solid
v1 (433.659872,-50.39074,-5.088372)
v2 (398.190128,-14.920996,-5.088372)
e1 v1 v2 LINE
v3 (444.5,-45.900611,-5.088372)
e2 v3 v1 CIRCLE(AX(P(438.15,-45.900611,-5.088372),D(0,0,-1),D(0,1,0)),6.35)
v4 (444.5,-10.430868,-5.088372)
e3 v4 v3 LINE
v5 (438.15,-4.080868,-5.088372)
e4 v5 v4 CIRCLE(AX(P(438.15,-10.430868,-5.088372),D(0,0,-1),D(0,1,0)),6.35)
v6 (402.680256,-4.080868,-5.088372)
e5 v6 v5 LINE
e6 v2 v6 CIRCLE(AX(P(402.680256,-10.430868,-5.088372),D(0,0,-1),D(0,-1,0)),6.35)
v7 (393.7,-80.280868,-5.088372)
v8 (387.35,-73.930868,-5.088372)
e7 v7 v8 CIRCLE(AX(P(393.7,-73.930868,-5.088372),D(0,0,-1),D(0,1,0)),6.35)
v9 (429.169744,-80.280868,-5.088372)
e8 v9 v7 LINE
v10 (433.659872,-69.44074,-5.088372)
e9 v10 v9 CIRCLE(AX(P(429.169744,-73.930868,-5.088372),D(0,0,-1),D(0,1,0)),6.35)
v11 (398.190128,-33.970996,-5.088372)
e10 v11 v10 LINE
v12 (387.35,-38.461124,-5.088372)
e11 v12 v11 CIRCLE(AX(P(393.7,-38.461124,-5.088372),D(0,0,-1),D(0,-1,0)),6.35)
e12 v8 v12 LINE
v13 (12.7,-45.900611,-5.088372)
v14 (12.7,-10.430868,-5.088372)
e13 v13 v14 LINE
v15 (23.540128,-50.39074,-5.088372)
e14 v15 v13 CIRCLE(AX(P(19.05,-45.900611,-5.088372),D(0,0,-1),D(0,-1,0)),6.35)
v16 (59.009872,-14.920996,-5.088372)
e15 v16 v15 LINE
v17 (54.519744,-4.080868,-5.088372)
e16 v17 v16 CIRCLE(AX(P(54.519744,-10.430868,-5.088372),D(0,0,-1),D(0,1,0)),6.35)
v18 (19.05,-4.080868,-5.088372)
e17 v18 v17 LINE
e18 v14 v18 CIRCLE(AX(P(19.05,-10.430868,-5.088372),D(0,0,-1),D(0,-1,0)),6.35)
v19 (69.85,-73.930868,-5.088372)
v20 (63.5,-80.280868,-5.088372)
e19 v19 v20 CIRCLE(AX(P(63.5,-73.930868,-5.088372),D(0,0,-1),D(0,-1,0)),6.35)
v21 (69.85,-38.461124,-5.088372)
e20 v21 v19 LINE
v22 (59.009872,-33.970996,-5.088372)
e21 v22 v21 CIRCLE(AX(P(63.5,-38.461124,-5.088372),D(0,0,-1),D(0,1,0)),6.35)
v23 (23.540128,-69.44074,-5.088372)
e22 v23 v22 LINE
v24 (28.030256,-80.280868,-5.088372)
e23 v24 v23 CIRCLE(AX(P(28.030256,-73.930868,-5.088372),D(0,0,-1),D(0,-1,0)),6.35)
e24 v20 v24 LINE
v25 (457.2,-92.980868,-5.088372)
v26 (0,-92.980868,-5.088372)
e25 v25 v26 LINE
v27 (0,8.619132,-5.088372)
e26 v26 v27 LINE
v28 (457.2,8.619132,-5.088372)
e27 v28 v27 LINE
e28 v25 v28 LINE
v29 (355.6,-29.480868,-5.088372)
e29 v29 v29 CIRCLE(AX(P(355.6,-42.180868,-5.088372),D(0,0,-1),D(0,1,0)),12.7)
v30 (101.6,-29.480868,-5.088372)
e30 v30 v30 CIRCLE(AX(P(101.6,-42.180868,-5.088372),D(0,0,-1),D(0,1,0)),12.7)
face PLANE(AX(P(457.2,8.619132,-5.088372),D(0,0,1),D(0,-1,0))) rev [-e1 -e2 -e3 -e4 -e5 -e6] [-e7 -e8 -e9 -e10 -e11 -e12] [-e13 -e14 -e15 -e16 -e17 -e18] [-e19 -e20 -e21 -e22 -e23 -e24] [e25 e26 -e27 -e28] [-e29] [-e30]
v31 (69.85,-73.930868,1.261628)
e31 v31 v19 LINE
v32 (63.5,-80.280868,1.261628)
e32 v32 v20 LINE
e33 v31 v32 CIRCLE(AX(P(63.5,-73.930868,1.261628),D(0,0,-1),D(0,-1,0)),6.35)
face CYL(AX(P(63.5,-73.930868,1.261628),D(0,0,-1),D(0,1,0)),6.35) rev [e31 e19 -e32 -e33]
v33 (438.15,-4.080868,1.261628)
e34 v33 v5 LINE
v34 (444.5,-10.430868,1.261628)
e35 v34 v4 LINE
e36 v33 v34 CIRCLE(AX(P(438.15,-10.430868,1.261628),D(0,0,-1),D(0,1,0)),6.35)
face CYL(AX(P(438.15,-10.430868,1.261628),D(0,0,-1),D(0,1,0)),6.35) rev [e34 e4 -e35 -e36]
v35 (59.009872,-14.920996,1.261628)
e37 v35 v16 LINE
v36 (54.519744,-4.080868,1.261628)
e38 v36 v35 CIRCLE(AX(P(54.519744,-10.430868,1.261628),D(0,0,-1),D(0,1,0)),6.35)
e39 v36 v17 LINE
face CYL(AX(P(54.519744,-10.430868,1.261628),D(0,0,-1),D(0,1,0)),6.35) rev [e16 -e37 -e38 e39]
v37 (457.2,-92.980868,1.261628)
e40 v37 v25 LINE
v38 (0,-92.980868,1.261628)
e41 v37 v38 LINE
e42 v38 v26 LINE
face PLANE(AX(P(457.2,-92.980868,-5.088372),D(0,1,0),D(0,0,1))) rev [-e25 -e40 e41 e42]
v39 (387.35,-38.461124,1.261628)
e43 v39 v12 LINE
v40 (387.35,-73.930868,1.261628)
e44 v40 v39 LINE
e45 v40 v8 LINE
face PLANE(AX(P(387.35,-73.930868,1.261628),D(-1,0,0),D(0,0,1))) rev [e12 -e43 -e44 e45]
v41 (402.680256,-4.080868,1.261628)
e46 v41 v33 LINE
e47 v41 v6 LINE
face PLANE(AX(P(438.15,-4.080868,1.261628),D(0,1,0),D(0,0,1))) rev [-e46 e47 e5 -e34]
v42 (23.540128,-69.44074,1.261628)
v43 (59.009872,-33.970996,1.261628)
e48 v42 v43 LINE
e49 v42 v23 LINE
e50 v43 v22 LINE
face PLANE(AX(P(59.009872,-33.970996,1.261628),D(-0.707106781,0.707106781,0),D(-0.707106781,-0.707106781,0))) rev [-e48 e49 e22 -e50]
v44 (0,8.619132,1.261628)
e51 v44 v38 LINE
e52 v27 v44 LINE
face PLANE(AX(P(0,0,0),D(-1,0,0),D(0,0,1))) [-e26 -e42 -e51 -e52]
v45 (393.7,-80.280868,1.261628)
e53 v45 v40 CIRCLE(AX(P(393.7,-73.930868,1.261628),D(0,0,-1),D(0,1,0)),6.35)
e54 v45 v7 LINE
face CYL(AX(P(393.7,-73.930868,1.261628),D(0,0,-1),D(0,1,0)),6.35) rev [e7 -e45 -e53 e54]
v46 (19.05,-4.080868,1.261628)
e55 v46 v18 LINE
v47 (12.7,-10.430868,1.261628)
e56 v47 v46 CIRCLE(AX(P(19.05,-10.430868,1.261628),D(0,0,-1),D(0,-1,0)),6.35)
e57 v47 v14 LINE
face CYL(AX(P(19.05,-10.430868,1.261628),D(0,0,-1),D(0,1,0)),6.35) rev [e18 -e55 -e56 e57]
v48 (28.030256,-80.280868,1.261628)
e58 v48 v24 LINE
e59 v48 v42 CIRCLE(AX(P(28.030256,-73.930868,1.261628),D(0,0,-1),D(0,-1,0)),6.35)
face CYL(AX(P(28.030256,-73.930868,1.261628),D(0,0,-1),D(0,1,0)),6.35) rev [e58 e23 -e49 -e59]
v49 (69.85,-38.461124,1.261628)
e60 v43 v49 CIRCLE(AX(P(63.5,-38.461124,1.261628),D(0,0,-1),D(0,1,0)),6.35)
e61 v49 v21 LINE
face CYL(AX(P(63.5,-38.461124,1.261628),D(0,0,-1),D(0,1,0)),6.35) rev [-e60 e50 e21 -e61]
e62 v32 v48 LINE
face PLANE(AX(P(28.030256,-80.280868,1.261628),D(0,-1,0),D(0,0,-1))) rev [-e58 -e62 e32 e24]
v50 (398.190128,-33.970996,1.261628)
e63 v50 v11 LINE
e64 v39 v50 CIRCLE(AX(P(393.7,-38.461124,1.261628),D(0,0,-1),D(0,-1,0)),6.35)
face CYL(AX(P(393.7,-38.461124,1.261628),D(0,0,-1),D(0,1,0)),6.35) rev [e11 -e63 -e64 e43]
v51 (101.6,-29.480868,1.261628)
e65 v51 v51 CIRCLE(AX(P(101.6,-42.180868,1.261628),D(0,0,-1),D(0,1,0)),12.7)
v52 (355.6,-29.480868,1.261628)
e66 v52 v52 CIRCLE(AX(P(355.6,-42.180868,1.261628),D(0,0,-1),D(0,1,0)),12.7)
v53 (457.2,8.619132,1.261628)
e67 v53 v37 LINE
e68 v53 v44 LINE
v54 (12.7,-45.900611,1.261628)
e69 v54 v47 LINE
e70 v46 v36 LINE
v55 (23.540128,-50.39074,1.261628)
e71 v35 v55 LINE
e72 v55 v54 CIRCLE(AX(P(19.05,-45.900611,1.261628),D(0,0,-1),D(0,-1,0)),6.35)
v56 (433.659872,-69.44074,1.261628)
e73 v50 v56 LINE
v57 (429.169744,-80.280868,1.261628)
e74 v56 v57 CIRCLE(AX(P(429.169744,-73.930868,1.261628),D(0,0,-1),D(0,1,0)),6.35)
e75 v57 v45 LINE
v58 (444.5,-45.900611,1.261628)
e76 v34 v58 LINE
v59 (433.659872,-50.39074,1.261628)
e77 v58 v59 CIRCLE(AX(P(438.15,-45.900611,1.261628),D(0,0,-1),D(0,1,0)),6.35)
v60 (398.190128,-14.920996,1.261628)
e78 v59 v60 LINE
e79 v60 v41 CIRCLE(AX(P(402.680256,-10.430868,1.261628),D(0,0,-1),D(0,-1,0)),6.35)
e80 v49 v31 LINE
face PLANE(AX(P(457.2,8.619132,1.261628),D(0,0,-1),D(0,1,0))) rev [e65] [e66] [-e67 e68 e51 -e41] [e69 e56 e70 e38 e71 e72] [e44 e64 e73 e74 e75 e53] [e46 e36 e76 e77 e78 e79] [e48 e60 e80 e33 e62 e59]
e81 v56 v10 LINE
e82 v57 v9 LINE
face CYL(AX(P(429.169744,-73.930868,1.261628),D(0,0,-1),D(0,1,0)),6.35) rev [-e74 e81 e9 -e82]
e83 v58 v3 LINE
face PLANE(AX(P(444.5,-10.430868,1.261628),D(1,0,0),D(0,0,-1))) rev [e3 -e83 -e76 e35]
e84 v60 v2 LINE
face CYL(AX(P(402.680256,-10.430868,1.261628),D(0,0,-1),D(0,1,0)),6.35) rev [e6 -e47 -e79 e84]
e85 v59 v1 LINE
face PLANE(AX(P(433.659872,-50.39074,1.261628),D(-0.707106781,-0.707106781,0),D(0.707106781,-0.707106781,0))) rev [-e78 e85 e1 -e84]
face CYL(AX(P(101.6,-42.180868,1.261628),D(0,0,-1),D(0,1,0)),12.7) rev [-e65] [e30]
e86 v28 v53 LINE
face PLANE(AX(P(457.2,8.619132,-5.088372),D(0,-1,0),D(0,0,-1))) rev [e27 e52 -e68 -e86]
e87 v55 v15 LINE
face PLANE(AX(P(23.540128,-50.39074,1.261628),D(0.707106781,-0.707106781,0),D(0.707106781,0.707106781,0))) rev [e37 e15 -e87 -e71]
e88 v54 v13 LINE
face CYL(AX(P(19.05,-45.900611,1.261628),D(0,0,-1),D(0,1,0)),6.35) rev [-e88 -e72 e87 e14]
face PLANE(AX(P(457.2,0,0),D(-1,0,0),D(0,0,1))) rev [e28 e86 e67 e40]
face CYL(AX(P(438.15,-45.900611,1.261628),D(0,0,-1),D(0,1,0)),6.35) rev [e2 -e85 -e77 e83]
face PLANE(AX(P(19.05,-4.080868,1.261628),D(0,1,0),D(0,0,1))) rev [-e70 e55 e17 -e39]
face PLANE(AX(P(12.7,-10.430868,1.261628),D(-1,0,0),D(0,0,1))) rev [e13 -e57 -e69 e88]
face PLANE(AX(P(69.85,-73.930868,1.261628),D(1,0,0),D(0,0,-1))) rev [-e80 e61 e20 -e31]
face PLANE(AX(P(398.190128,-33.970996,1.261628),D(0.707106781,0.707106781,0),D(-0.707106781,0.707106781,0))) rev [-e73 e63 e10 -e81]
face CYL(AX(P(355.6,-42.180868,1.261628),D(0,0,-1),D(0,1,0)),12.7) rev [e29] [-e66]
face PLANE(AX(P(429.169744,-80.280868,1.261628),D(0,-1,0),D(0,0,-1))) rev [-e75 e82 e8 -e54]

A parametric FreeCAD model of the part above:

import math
import FreeCAD as App
import Part
import Sketcher

V = App.Vector
Q = App.Units.Quantity

doc = App.newDocument("Part")
body = doc.addObject("PartDesign::Body", "Body")

sketch1 = doc.addObject("Sketcher::SketchObject", "Sketch")
body.addObject(sketch1)
sketch1.AttachmentSupport = (doc.YZ_Plane, [""])
sketch1.MapMode = "FlatFace"
sketch1.addGeometry(Part.LineSegment(V(8.619132, 1.261628, 0), V(-92.980868, 1.261628, 0)), False)
sketch1.addGeometry(Part.LineSegment(V(-92.980868, 1.261628, 0), V(-92.980868, -5.088372, 0)), False)
sketch1.addGeometry(Part.LineSegment(V(-92.980868, -5.088372, 0), V(8.619132, -5.088372, 0)), False)
sketch1.addGeometry(Part.LineSegment(V(8.619132, -5.088372, 0), V(8.619132, 1.261628, 0)), False)
sketch1.addConstraint(Sketcher.Constraint("Coincident", 0, 2, 1, 1))
sketch1.addConstraint(Sketcher.Constraint("Coincident", 1, 2, 2, 1))
sketch1.addConstraint(Sketcher.Constraint("Coincident", 2, 2, 3, 1))
sketch1.addConstraint(Sketcher.Constraint("Coincident", 3, 2, 0, 1))
sketch1.addConstraint(Sketcher.Constraint("Horizontal", 0))
sketch1.addConstraint(Sketcher.Constraint("Vertical", 1))
sketch1.addConstraint(Sketcher.Constraint("Horizontal", 2))
sketch1.addConstraint(Sketcher.Constraint("Vertical", 3))
sketch1.addConstraint(Sketcher.Constraint("DistanceX", 0, 2, 0, 1, Q("4 in")))
sketch1.addConstraint(Sketcher.Constraint("DistanceY", 1, 2, 1, 1, Q("0.25 in")))
sketch1.addConstraint(Sketcher.Constraint("DistanceY", -1, 1, 0, 2, Q("1.261628 mm")))
sketch1.addConstraint(Sketcher.Constraint("DistanceX", 0, 2, -1, 1, Q("92.980868 mm")))
pad1 = doc.addObject("PartDesign::Pad", "Pad")
body.addObject(pad1)
pad1.Profile = sketch1
pad1.Length = Q("18 in")

sketch2 = doc.addObject("Sketcher::SketchObject", "Sketch001")
body.addObject(sketch2)
sketch2.AttachmentSupport = (doc.XY_Plane, [""])
sketch2.MapMode = "FlatFace"
sketch2.AttachmentOffset = App.Placement(V(0, 0, -5.088372), App.Rotation())
sketch2.addGeometry(Part.Circle(V(355.6, -42.180868, 0), V(0, 0, 1), 12.7), False)
sketch2.addGeometry(Part.Circle(V(101.6, -42.180868, 0), V(0, 0, 1), 12.7), False)
sketch2.addConstraint(Sketcher.Constraint("Equal", 0, 1))
sketch2.addConstraint(Sketcher.Constraint("Horizontal", 0, 3, 1, 3))
sketch2.addConstraint(Sketcher.Constraint("Diameter", 0, Q("1 in")))
sketch2.addConstraint(Sketcher.Constraint("DistanceX", -1, 1, 0, 3, Q("14 in")))
sketch2.addConstraint(Sketcher.Constraint("DistanceX", -1, 1, 1, 3, Q("4 in")))
sketch2.addConstraint(Sketcher.Constraint("DistanceY", 0, 3, -1, 1, Q("42.180868 mm")))
pocket1 = doc.addObject("PartDesign::Pocket", "Pocket")
body.addObject(pocket1)
pocket1.Profile = sketch2
pocket1.Type = "ThroughAll"
pocket1.Reversed = True

sketch3 = doc.addObject("Sketcher::SketchObject", "Sketch002")
body.addObject(sketch3)
sketch3.AttachmentSupport = (doc.XY_Plane, [""])
sketch3.MapMode = "FlatFace"
sketch3.AttachmentOffset = App.Placement(V(0, 0, -5.088372), App.Rotation())
sketch3.addGeometry(Part.LineSegment(V(402.680256, -4.080868, 0), V(438.15, -4.080868, 0)), False)
sketch3.addGeometry(Part.ArcOfCircle(Part.Circle(V(438.15, -10.430868, 0), V(0, 0, 1), 6.35), math.radians(0), math.radians(90)), False)
sketch3.addGeometry(Part.LineSegment(V(444.5, -10.430868, 0), V(444.5, -45.900611, 0)), False)
sketch3.addGeometry(Part.ArcOfCircle(Part.Circle(V(438.15, -45.900611, 0), V(0, 0, 1), 6.35), math.radians(-135), math.radians(0)), False)
sketch3.addGeometry(Part.LineSegment(V(433.659872, -50.39074, 0), V(398.190128, -14.920996, 0)), False)
sketch3.addGeometry(Part.ArcOfCircle(Part.Circle(V(402.680256, -10.430868, 0), V(0, 0, 1), 6.35), math.radians(90), math.radians(225)), False)
sketch3.addGeometry(Part.LineSegment(V(398.190128, -33.970996, 0), V(433.659872, -69.44074, 0)), False)
sketch3.addGeometry(Part.ArcOfCircle(Part.Circle(V(429.169744, -73.930868, 0), V(0, 0, 1), 6.35), math.radians(-90), math.radians(45)), False)
sketch3.addGeometry(Part.LineSegment(V(429.169744, -80.280868, 0), V(393.7, -80.280868, 0)), False)
sketch3.addGeometry(Part.ArcOfCircle(Part.Circle(V(393.7, -73.930868, 0), V(0, 0, 1), 6.35), math.radians(180), math.radians(270)), False)
sketch3.addGeometry(Part.LineSegment(V(387.35, -73.930868, 0), V(387.35, -38.461124, 0)), False)
sketch3.addGeometry(Part.ArcOfCircle(Part.Circle(V(393.7, -38.461124, 0), V(0, 0, 1), 6.35), math.radians(45), math.radians(180)), False)
sketch3.addGeometry(Part.LineSegment(V(69.85, -38.461124, 0), V(69.85, -73.930868, 0)), False)
sketch3.addGeometry(Part.ArcOfCircle(Part.Circle(V(63.5, -73.930868, 0), V(0, 0, 1), 6.35), math.radians(-90), math.radians(0)), False)
sketch3.addGeometry(Part.LineSegment(V(63.5, -80.280868, 0), V(28.030256, -80.280868, 0)), False)
sketch3.addGeometry(Part.ArcOfCircle(Part.Circle(V(28.030256, -73.930868, 0), V(0, 0, 1), 6.35), math.radians(135), math.radians(270)), False)
sketch3.addGeometry(Part.LineSegment(V(23.540128, -69.44074, 0), V(59.009872, -33.970996, 0)), False)
sketch3.addGeometry(Part.ArcOfCircle(Part.Circle(V(63.5, -38.461124, 0), V(0, 0, 1), 6.35), math.radians(0), math.radians(135)), False)
sketch3.addGeometry(Part.LineSegment(V(59.009872, -14.920996, 0), V(23.540128, -50.39074, 0)), False)
sketch3.addGeometry(Part.ArcOfCircle(Part.Circle(V(19.05, -45.900611, 0), V(0, 0, 1), 6.35), math.radians(180), math.radians(315)), False)
sketch3.addGeometry(Part.LineSegment(V(12.7, -45.900611, 0), V(12.7, -10.430868, 0)), False)
sketch3.addGeometry(Part.ArcOfCircle(Part.Circle(V(19.05, -10.430868, 0), V(0, 0, 1), 6.35), math.radians(90), math.radians(180)), False)
sketch3.addGeometry(Part.LineSegment(V(19.05, -4.080868, 0), V(54.519744, -4.080868, 0)), False)
sketch3.addGeometry(Part.ArcOfCircle(Part.Circle(V(54.519744, -10.430868, 0), V(0, 0, 1), 6.35), math.radians(-45), math.radians(90)), False)
sketch3.addConstraint(Sketcher.Constraint("Tangent", 0, 2, 1, 2))
sketch3.addConstraint(Sketcher.Constraint("Tangent", 1, 1, 2, 1))
sketch3.addConstraint(Sketcher.Constraint("Tangent", 2, 2, 3, 2))
sketch3.addConstraint(Sketcher.Constraint("Tangent", 3, 1, 4, 1))
sketch3.addConstraint(Sketcher.Constraint("Tangent", 4, 2, 5, 2))
sketch3.addConstraint(Sketcher.Constraint("Tangent", 5, 1, 0, 1))
sketch3.addConstraint(Sketcher.Constraint("Tangent", 6, 2, 7, 2))
sketch3.addConstraint(Sketcher.Constraint("Tangent", 7, 1, 8, 1))
sketch3.addConstraint(Sketcher.Constraint("Tangent", 8, 2, 9, 2))
sketch3.addConstraint(Sketcher.Constraint("Tangent", 9, 1, 10, 1))
sketch3.addConstraint(Sketcher.Constraint("Tangent", 10, 2, 11, 2))
sketch3.addConstraint(Sketcher.Constraint("Tangent", 11, 1, 6, 1))
sketch3.addConstraint(Sketcher.Constraint("Tangent", 12, 2, 13, 2))
sketch3.addConstraint(Sketcher.Constraint("Tangent", 13, 1, 14, 1))
sketch3.addConstraint(Sketcher.Constraint("Tangent", 14, 2, 15, 2))
sketch3.addConstraint(Sketcher.Constraint("Tangent", 15, 1, 16, 1))
sketch3.addConstraint(Sketcher.Constraint("Tangent", 16, 2, 17, 2))
sketch3.addConstraint(Sketcher.Constraint("Tangent", 17, 1, 12, 1))
sketch3.addConstraint(Sketcher.Constraint("Tangent", 18, 2, 19, 2))
sketch3.addConstraint(Sketcher.Constraint("Tangent", 19, 1, 20, 1))
sketch3.addConstraint(Sketcher.Constraint("Tangent", 20, 2, 21, 2))
sketch3.addConstraint(Sketcher.Constraint("Tangent", 21, 1, 22, 1))
sketch3.addConstraint(Sketcher.Constraint("Tangent", 22, 2, 23, 2))
sketch3.addConstraint(Sketcher.Constraint("Tangent", 23, 1, 18, 1))
sketch3.addConstraint(Sketcher.Constraint("Horizontal", 0))
sketch3.addConstraint(Sketcher.Constraint("Vertical", 2))
sketch3.addConstraint(Sketcher.Constraint("Horizontal", 8))
sketch3.addConstraint(Sketcher.Constraint("Vertical", 10))
sketch3.addConstraint(Sketcher.Constraint("Vertical", 12))
sketch3.addConstraint(Sketcher.Constraint("Horizontal", 14))
sketch3.addConstraint(Sketcher.Constraint("Vertical", 20))
sketch3.addConstraint(Sketcher.Constraint("Horizontal", 22))
sketch3.addConstraint(Sketcher.Constraint("Equal", 1, 3))
sketch3.addConstraint(Sketcher.Constraint("Equal", 3, 5))
sketch3.addConstraint(Sketcher.Constraint("Equal", 5, 7))
sketch3.addConstraint(Sketcher.Constraint("Equal", 7, 9))
sketch3.addConstraint(Sketcher.Constraint("Equal", 9, 11))
sketch3.addConstraint(Sketcher.Constraint("Equal", 11, 13))
sketch3.addConstraint(Sketcher.Constraint("Equal", 13, 15))
sketch3.addConstraint(Sketcher.Constraint("Equal", 15, 17))
sketch3.addConstraint(Sketcher.Constraint("Equal", 17, 19))
sketch3.addConstraint(Sketcher.Constraint("Equal", 19, 21))
sketch3.addConstraint(Sketcher.Constraint("Equal", 21, 23))
sketch3.addConstraint(Sketcher.Constraint("Parallel", 4, 6))
sketch3.addConstraint(Sketcher.Constraint("Perpendicular", 6, 16))
sketch3.addConstraint(Sketcher.Constraint("Parallel", 16, 18))
sketch3.addConstraint(Sketcher.Constraint("Horizontal", 9, 3, 13, 3))
sketch3.addConstraint(Sketcher.Constraint("Horizontal", 11, 3, 17, 3))
sketch3.addConstraint(Sketcher.Constraint("Horizontal", 3, 3, 19, 3))
sketch3.addConstraint(Sketcher.Constraint("Horizontal", 5, 3, 21, 3))
sketch3.addConstraint(Sketcher.Constraint("Horizontal", 6, 2, 15, 1))
sketch3.addConstraint(Sketcher.Constraint("Vertical", 3, 1, 6, 2))
sketch3.addConstraint(Sketcher.Constraint("Vertical", 4, 2, 11, 1))
sketch3.addConstraint(Sketcher.Constraint("Vertical", 15, 1, 18, 2))
sketch3.addConstraint(Sketcher.Constraint("Radius", 1, Q("0.25 in")))
sketch3.addConstraint(Sketcher.Constraint("DistanceX", 13, 3, 9, 3, Q("13 in")))
sketch3.addConstraint(Sketcher.Constraint("DistanceX", 11, 3, 1, 1, Q("2 in")))
sketch3.addConstraint(Sketcher.Constraint("DistanceX", -1, 1, 9, 3, Q("15.5 in")))
sketch3.addConstraint(Sketcher.Constraint("DistanceY", 7, 3, 1, 3, Q("2.5 in")))
sketch3.addConstraint(Sketcher.Constraint("DistanceY", 3, 3, -1, 1, Q("45.900611 mm")))
pocket2 = doc.addObject("PartDesign::Pocket", "Pocket001")
body.addObject(pocket2)
pocket2.Profile = sketch3
pocket2.Type = "ThroughAll"
pocket2.Reversed = True

doc.recompute()
